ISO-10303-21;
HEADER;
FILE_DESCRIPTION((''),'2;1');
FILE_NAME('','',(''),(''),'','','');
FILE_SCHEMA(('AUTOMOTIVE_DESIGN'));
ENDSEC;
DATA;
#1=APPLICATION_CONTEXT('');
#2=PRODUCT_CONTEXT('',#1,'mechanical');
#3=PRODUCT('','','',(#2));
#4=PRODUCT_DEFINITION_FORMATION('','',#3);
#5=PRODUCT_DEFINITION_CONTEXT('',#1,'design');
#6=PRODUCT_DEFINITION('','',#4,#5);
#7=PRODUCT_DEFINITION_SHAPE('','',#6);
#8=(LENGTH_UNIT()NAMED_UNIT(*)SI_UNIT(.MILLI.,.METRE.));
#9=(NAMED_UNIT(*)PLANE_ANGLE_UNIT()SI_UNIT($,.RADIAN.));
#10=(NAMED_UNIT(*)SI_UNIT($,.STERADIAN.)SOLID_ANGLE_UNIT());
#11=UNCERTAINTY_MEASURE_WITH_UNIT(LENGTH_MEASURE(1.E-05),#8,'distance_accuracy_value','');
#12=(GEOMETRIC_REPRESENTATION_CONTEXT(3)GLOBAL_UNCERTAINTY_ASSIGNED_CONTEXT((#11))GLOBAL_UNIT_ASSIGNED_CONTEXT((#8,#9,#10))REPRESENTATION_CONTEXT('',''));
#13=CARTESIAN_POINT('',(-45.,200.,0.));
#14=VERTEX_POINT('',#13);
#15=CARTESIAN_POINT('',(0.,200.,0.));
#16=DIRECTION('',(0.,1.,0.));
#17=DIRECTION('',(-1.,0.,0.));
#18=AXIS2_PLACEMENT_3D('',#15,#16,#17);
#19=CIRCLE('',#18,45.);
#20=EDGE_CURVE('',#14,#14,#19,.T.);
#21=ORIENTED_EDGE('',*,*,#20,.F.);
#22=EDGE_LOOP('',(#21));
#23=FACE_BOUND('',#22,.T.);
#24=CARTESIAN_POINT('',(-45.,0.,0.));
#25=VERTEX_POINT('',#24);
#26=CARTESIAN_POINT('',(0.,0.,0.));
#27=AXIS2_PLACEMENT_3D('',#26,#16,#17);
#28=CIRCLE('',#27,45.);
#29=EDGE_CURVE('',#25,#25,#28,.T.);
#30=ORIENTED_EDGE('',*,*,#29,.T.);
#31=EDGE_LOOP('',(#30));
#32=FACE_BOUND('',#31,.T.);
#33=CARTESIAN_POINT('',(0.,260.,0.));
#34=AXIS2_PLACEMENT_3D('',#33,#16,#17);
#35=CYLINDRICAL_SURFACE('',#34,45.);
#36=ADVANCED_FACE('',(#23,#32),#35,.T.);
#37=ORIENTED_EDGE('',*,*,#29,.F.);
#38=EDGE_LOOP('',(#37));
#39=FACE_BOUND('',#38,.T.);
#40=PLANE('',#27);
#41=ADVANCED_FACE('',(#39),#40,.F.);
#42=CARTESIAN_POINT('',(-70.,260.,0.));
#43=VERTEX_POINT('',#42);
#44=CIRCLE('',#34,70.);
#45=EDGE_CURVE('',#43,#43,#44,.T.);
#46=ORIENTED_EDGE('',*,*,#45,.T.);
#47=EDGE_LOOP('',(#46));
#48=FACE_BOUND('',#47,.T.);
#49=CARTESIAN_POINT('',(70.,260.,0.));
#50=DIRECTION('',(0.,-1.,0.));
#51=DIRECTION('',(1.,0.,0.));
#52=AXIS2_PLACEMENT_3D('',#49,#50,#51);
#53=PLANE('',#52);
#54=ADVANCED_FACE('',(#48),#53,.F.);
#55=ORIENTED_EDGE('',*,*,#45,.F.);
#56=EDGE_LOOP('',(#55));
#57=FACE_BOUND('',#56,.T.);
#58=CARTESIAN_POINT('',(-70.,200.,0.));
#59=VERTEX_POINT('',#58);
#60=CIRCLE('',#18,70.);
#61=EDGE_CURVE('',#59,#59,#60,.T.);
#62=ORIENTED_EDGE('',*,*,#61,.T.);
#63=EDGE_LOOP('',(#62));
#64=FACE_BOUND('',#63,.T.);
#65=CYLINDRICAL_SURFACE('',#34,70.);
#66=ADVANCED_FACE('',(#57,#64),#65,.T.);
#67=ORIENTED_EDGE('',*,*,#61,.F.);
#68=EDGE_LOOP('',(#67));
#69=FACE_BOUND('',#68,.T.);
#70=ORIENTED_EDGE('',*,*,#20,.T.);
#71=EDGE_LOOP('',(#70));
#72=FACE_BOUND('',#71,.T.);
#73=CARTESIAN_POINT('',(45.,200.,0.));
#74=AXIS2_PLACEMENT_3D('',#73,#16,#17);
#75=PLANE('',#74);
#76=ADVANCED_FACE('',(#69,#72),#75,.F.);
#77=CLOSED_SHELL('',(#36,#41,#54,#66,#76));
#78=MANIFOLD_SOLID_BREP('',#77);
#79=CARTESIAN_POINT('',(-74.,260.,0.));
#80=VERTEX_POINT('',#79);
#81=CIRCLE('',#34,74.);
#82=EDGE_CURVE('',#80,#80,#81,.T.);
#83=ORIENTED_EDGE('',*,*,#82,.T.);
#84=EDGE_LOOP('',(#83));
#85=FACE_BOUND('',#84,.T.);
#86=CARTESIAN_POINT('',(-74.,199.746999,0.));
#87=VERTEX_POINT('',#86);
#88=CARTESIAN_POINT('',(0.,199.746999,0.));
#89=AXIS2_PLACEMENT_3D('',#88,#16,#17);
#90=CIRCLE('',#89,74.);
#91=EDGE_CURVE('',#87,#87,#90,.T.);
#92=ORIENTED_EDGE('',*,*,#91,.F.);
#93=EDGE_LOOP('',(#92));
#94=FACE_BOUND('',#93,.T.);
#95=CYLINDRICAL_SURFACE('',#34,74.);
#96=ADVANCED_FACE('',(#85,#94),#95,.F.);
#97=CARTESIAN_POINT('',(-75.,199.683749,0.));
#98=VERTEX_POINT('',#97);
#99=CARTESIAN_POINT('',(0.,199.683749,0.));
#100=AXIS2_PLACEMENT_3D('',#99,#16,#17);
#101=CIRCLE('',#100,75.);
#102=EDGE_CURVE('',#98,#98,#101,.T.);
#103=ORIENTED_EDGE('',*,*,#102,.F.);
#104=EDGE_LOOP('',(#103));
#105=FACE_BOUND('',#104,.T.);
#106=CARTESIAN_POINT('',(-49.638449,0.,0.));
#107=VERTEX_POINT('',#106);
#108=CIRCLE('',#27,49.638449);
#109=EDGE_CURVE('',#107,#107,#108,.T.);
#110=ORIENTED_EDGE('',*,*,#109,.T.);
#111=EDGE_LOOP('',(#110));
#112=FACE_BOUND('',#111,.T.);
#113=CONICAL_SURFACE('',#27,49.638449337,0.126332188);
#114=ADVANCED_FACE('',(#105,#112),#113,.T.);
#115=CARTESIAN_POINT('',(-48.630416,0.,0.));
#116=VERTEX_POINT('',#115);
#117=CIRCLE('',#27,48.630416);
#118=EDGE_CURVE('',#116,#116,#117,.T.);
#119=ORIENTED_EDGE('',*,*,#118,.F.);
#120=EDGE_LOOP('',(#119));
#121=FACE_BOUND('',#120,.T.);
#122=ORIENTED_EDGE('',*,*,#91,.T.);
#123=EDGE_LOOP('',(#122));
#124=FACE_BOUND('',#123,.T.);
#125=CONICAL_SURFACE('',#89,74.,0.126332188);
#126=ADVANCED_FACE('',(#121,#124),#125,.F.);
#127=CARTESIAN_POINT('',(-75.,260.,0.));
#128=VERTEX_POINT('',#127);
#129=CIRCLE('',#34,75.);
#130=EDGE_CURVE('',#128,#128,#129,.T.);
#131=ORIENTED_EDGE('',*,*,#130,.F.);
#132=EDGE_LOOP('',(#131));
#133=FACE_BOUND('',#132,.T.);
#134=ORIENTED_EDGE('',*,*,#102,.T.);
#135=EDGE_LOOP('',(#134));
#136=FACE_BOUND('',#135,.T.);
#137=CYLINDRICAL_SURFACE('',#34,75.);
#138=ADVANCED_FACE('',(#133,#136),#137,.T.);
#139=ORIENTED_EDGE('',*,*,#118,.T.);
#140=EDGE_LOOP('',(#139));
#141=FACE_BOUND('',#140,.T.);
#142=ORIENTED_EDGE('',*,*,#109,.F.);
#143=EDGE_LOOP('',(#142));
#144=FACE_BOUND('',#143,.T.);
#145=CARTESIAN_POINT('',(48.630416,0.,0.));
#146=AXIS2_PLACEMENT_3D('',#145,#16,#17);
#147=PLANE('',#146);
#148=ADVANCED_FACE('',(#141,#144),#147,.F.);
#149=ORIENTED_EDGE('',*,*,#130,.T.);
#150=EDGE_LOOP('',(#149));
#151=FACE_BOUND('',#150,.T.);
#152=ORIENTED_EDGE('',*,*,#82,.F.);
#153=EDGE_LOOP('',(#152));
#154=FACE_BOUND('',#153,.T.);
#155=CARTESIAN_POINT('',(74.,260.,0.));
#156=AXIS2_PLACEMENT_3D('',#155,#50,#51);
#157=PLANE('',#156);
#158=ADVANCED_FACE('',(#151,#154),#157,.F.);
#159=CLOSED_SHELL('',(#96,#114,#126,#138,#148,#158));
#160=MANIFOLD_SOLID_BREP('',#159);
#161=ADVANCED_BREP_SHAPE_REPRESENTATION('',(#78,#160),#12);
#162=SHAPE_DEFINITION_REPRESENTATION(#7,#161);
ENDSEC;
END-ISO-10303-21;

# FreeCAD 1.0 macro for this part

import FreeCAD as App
import Part
import Sketcher
from FreeCAD import Vector


def add_polygon(sketch, points):
    """Adds a closed chain of lines whose ends are joined by coincident constraints."""
    first, n = sketch.GeometryCount, len(points)
    for a, b in zip(points, points[1:] + points[:1]):
        sketch.addGeometry(Part.LineSegment(App.Vector(*a, 0), App.Vector(*b, 0)), False)
    for i in range(n):
        sketch.addConstraint(Sketcher.Constraint("Coincident", first + i, 2, first + (i + 1) % n, 1))

doc = App.newDocument("Part")
body = doc.addObject("PartDesign::Body", "Body")

# Sketch on XY plane
sketch1 = body.newObject("Sketcher::SketchObject", "Sketch")
sketch1.AttachmentSupport = (doc.getObject("XY_Plane"), [""])
sketch1.MapMode = "FlatFace"
add_polygon(sketch1, [(0, 0), (45, 0), (45, 200), (70, 200), (70, 260), (0, 260)])  # lines 0-5
sketch1.addConstraint([
    Sketcher.Constraint("Horizontal", 0),
    Sketcher.Constraint("Vertical", 1),
    Sketcher.Constraint("Horizontal", 2),
    Sketcher.Constraint("Vertical", 3),
    Sketcher.Constraint("Horizontal", 4),
    Sketcher.Constraint("Vertical", 5),
    Sketcher.Constraint("Coincident", 5, 2, -1, 1),
    Sketcher.Constraint("DistanceX", 0, 1, 0, 2, 45.0),
    Sketcher.Constraint("DistanceX", 2, 1, 2, 2, 25.0),
    Sketcher.Constraint("DistanceY", 1, 1, 1, 2, 200.0),
    Sketcher.Constraint("DistanceY", 3, 1, 3, 2, 60.0),
])
revolution = body.newObject("PartDesign::Revolution", "Revolution")
revolution.Profile = sketch1
revolution.ReferenceAxis = (sketch1, ["V_Axis"])
revolution.Angle = 360
body2 = doc.addObject("PartDesign::Body", "Body001")

# Sketch on XY plane
sketch2 = body2.newObject("Sketcher::SketchObject", "Sketch001")
sketch2.AttachmentSupport = (doc.getObject("XY_Plane001"), [""])
sketch2.MapMode = "FlatFace"
add_polygon(sketch2, [(75, 199.7), (75, 260), (74, 260), (74, 199.7), (48.6, 0), (49.6, 0)])  # lines 0-5
sketch2.addConstraint([
    Sketcher.Constraint("Vertical", 0),
    Sketcher.Constraint("Horizontal", 1),
    Sketcher.Constraint("Vertical", 2),
    Sketcher.Constraint("Horizontal", 4),
    Sketcher.Constraint("PointOnObject", 3, 2, -1),
    Sketcher.Constraint("Parallel", 3, 5),
    Sketcher.Constraint("DistanceX", 1, 2, 1, 1, 1.0),
    Sketcher.Constraint("DistanceX", -1, 1, 0, 2, 75.0),
    Sketcher.Constraint("DistanceY", -1, 1, 0, 2, 260.0),
    Sketcher.Constraint("DistanceY", 2, 2, 2, 1, 60.253001),
    Sketcher.Constraint("DistanceY", 0, 1, 0, 2, 60.316251),
    Sketcher.Constraint("Distance", 3, 201.351631),
])
revolution2 = body2.newObject("PartDesign::Revolution", "Revolution001")
revolution2.Profile = sketch2
revolution2.ReferenceAxis = (sketch2, ["V_Axis"])
revolution2.Angle = 360

doc.recompute()
